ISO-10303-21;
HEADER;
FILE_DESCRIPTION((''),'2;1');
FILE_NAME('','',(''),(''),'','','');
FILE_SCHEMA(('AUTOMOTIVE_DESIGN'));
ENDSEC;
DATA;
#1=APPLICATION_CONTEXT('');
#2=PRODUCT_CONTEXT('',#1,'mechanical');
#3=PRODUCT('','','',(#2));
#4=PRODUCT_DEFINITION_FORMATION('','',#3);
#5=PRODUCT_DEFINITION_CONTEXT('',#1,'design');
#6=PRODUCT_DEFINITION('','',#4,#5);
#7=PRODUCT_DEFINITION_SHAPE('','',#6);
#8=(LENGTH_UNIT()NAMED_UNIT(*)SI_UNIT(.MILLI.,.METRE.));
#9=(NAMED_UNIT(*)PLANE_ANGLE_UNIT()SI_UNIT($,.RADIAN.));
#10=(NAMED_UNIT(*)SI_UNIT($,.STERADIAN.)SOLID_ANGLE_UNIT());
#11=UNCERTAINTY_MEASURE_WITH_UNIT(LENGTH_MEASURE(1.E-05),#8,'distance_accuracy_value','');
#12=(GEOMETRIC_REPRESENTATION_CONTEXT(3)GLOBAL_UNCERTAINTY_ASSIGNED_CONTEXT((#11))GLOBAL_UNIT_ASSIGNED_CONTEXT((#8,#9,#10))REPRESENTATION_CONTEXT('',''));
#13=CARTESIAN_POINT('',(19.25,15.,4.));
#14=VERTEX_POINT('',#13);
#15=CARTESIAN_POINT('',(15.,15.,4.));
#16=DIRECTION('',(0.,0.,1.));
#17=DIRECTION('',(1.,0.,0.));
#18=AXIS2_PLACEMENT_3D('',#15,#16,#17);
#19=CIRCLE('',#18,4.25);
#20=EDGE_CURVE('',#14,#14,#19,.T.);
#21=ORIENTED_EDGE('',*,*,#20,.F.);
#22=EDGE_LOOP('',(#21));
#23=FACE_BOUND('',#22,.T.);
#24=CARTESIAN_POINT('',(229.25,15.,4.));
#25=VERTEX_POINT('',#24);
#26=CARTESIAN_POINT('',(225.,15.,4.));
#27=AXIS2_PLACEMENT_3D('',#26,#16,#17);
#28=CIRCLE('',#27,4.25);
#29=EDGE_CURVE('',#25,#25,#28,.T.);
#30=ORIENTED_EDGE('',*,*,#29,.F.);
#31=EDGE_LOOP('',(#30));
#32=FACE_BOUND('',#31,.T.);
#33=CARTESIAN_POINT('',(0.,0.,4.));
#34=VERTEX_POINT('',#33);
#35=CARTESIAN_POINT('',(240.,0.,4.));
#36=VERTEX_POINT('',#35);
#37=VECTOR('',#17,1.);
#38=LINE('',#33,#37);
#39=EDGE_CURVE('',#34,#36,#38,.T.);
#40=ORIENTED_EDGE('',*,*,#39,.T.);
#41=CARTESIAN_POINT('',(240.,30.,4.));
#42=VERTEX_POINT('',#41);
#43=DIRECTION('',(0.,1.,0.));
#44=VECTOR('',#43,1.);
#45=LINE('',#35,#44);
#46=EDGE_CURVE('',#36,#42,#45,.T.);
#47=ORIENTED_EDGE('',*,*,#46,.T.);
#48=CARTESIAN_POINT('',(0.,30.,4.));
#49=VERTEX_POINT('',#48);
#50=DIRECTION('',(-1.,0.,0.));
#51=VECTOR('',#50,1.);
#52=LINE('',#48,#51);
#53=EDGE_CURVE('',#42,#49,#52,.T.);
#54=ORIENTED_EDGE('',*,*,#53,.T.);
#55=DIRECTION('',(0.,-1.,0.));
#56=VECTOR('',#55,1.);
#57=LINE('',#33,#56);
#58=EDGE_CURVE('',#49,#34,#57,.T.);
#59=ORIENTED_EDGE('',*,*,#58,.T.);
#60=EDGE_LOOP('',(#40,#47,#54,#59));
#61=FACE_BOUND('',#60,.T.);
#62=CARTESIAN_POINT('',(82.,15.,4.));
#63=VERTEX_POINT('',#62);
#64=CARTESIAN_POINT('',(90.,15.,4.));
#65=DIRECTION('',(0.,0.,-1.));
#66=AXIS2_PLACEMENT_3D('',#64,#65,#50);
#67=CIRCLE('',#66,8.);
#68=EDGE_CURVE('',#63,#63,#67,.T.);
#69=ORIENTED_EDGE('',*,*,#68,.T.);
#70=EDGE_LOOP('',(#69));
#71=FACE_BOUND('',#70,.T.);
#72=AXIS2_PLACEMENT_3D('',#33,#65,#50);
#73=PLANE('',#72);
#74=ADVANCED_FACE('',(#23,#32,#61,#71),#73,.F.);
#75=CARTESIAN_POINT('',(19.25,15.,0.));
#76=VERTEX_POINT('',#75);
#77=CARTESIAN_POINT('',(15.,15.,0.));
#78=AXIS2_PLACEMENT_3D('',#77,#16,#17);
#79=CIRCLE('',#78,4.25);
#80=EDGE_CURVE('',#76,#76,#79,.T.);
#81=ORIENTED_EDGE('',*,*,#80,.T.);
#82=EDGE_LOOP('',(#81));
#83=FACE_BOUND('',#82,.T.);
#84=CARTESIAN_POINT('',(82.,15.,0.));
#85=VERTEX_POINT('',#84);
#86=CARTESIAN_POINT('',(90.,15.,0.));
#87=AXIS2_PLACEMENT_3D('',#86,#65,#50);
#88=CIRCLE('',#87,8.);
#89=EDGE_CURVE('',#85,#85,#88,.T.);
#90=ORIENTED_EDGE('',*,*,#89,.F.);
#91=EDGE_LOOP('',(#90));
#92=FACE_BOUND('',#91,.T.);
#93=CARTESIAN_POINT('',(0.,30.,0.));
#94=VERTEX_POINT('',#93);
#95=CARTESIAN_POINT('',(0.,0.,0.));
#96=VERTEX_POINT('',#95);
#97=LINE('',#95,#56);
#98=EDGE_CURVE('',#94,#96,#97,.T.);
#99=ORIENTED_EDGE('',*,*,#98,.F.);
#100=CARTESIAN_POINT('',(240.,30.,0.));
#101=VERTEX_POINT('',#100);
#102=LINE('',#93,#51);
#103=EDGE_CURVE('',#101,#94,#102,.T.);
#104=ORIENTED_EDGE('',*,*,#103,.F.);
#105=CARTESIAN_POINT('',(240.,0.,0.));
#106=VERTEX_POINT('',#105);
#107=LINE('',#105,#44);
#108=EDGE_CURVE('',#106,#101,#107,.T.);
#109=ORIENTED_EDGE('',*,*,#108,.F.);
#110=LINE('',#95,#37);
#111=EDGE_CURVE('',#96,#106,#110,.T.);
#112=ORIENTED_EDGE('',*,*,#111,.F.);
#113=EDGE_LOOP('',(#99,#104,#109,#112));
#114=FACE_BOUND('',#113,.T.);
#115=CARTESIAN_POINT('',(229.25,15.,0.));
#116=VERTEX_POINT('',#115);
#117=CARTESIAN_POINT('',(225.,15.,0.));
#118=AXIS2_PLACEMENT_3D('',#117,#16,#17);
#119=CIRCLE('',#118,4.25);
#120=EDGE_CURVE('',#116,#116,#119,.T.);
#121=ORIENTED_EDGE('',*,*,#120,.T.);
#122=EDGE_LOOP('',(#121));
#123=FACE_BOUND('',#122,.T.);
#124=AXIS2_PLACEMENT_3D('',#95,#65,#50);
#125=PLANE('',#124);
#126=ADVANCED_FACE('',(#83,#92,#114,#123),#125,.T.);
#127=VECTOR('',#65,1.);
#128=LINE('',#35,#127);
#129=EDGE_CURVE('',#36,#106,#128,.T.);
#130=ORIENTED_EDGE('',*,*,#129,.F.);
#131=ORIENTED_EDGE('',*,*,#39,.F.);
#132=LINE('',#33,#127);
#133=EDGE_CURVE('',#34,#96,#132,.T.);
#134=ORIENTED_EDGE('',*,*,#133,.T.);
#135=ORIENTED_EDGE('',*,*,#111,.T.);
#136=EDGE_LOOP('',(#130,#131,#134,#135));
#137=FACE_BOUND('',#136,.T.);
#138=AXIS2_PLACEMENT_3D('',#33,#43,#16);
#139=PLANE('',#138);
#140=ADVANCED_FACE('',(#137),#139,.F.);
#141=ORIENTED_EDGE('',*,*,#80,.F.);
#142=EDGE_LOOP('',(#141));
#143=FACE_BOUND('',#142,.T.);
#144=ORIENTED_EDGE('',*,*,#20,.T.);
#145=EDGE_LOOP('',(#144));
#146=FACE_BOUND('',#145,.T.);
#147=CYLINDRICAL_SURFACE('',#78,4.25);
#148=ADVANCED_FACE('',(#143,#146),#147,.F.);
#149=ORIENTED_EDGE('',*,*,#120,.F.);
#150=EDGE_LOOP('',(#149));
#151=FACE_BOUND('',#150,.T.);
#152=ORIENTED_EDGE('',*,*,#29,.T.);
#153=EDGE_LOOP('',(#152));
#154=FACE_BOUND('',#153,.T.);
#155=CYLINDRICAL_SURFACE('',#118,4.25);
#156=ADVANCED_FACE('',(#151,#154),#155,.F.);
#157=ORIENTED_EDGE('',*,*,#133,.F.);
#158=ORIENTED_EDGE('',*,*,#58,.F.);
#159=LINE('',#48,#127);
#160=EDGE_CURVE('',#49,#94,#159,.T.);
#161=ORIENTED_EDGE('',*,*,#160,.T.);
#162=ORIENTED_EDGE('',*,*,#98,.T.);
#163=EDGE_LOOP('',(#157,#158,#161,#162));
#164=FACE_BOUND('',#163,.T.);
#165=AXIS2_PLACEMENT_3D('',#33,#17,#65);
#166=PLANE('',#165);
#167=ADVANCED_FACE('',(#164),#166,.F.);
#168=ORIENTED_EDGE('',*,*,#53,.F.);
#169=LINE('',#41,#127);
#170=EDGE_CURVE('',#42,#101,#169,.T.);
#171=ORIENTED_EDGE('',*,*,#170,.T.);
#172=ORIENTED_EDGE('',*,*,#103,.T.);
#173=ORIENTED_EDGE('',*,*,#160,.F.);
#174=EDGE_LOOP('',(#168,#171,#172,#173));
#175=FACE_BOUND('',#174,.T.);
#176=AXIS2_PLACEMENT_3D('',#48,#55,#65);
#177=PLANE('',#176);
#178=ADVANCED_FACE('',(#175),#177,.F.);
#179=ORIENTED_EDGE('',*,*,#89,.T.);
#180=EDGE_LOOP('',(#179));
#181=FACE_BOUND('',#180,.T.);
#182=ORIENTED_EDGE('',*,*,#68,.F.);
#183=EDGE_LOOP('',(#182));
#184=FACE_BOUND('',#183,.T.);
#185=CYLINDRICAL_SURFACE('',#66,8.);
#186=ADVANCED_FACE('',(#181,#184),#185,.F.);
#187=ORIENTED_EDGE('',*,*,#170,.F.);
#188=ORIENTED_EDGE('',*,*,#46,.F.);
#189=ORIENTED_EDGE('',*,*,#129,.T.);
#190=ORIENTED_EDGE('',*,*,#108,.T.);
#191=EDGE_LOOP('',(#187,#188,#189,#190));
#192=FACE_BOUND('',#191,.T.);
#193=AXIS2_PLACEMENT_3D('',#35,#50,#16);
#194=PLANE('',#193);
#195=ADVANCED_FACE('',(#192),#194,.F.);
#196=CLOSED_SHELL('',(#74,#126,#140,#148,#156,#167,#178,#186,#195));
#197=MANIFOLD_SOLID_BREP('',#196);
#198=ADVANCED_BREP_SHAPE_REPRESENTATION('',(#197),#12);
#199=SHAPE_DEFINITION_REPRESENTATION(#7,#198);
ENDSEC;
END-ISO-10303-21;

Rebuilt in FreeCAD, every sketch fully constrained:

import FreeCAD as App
import Part
import Sketcher
Q = App.Units.Quantity

doc = App.newDocument("Part")
body = doc.addObject("PartDesign::Body", "Body")

# Sketch on XY plane
sketch1 = body.newObject("Sketcher::SketchObject", "Sketch")
sketch1.AttachmentSupport = (doc.getObject("XY_Plane"), [""])
sketch1.MapMode = "FlatFace"
sketch1.addGeometry(Part.LineSegment(App.Vector(0, 30, 0), App.Vector(0, 0, 0)), False)
sketch1.addGeometry(Part.LineSegment(App.Vector(0, 0, 0), App.Vector(240, 0, 0)), False)
sketch1.addGeometry(Part.LineSegment(App.Vector(240, 0, 0), App.Vector(240, 30, 0)), False)
sketch1.addGeometry(Part.LineSegment(App.Vector(240, 30, 0), App.Vector(0, 30, 0)), False)
sketch1.addConstraint(Sketcher.Constraint("Coincident", 0, 2, 1, 1))
sketch1.addConstraint(Sketcher.Constraint("Coincident", 1, 2, 2, 1))
sketch1.addConstraint(Sketcher.Constraint("Coincident", 2, 2, 3, 1))
sketch1.addConstraint(Sketcher.Constraint("Coincident", 3, 2, 0, 1))
sketch1.addConstraint(Sketcher.Constraint("Vertical", 0))
sketch1.addConstraint(Sketcher.Constraint("Horizontal", 1))
sketch1.addConstraint(Sketcher.Constraint("Vertical", 2))
sketch1.addConstraint(Sketcher.Constraint("Horizontal", 3))
sketch1.addConstraint(Sketcher.Constraint("Coincident", 0, 2, -1, 1))
sketch1.addConstraint(Sketcher.Constraint("DistanceX", 1, 1, 1, 2, Q("240 mm")))
sketch1.addConstraint(Sketcher.Constraint("DistanceY", 0, 2, 0, 1, Q("30 mm")))
pad1 = body.newObject("PartDesign::Pad", "Pad")
pad1.Profile = sketch1
pad1.Length = 4

# Sketch on XY plane
sketch2 = body.newObject("Sketcher::SketchObject", "Sketch001")
sketch2.AttachmentSupport = (doc.getObject("XY_Plane"), [""])
sketch2.MapMode = "FlatFace"
sketch2.AttachmentOffset = App.Placement(App.Vector(0, 0, 4), App.Rotation())
sketch2.addGeometry(Part.Circle(App.Vector(225, 15, 0), App.Vector(0, 0, 1), 4.2), False)
sketch2.addGeometry(Part.Circle(App.Vector(15, 15, 0), App.Vector(0, 0, 1), 4.2), False)
sketch2.addConstraint(Sketcher.Constraint("Equal", 0, 1))
sketch2.addConstraint(Sketcher.Constraint("Horizontal", 0, 3, 1, 3))
sketch2.addConstraint(Sketcher.Constraint("Diameter", 0, Q("8.5 mm")))
sketch2.addConstraint(Sketcher.Constraint("DistanceX", -1, 1, 0, 3, Q("225 mm")))
sketch2.addConstraint(Sketcher.Constraint("DistanceY", -1, 1, 0, 3, Q("15 mm")))
sketch2.addConstraint(Sketcher.Constraint("DistanceX", -1, 1, 1, 3, Q("15 mm")))
pocket1 = body.newObject("PartDesign::Pocket", "Pocket")
pocket1.Profile = sketch2
pocket1.Type = "ThroughAll"

# Sketch on XY plane
sketch3 = body.newObject("Sketcher::SketchObject", "Sketch002")
sketch3.AttachmentSupport = (doc.getObject("XY_Plane"), [""])
sketch3.MapMode = "FlatFace"
sketch3.addGeometry(Part.Circle(App.Vector(90, 15, 0), App.Vector(0, 0, 1), 8), False)
sketch3.addConstraint(Sketcher.Constraint("Diameter", 0, Q("16 mm")))
sketch3.addConstraint(Sketcher.Constraint("DistanceX", -1, 1, 0, 3, Q("90 mm")))
sketch3.addConstraint(Sketcher.Constraint("DistanceY", -1, 1, 0, 3, Q("15 mm")))
pocket2 = body.newObject("PartDesign::Pocket", "Pocket001")
pocket2.Profile = sketch3
pocket2.Type = "ThroughAll"
pocket2.Reversed = True

doc.recompute()
